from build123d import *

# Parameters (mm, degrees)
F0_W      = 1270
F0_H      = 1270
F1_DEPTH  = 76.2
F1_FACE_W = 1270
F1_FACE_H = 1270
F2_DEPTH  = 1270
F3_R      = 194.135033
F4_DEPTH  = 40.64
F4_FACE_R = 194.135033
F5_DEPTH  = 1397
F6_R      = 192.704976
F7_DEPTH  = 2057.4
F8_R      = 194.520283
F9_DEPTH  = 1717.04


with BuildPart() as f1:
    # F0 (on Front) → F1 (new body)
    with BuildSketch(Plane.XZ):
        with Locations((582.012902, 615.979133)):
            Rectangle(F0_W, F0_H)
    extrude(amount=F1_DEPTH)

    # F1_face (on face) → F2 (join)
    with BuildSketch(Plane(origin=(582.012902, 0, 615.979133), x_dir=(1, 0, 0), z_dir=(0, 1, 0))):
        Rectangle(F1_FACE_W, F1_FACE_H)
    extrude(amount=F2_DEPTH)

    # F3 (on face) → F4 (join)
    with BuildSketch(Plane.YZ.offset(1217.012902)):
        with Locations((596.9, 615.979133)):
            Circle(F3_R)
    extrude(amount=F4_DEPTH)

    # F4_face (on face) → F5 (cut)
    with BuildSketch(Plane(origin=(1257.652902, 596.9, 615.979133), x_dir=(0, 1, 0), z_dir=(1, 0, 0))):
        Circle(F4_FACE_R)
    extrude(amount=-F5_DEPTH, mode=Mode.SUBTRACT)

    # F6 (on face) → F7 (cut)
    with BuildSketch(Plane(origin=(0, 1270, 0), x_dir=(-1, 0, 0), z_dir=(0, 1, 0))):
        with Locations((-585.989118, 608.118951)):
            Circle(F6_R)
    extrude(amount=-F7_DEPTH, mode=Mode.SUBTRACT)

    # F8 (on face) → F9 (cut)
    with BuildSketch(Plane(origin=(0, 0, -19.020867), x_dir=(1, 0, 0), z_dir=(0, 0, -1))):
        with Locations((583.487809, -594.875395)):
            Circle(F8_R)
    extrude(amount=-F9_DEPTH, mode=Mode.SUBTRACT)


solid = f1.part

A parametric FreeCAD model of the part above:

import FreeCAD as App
import Part
import Sketcher
Q = App.Units.Quantity


def add_polygon(sketch, points):
    """Adds a closed chain of lines whose ends are joined by coincident constraints."""
    first, n = sketch.GeometryCount, len(points)
    for a, b in zip(points, points[1:] + points[:1]):
        sketch.addGeometry(Part.LineSegment(App.Vector(*a, 0), App.Vector(*b, 0)), False)
    for i in range(n):
        sketch.addConstraint(Sketcher.Constraint("Coincident", first + i, 2, first + (i + 1) % n, 1))

doc = App.newDocument("Part")
body = doc.addObject("PartDesign::Body", "Body")

# Sketch on XZ plane
sketch1 = body.newObject("Sketcher::SketchObject", "Sketch")
sketch1.AttachmentSupport = (doc.getObject("XZ_Plane"), [""])
sketch1.MapMode = "FlatFace"
add_polygon(sketch1, [(-52.987098, 1250.979133), (-52.987098, -19.020867), (1217.012902, -19.020867), (1217.012902, 1250.979133)])  # lines 0-3
sketch1.addConstraint([
    Sketcher.Constraint("Vertical", 0),
    Sketcher.Constraint("Horizontal", 1),
    Sketcher.Constraint("Vertical", 2),
    Sketcher.Constraint("Horizontal", 3),
    Sketcher.Constraint("Equal", 3, 0),
    Sketcher.Constraint("DistanceX", 1, 1, 1, 2, Q("50 in")),
    Sketcher.Constraint("DistanceX", 0, 2, -1, 1, Q("52.987098 mm")),
    Sketcher.Constraint("DistanceY", 0, 2, -1, 1, Q("19.020867 mm")),
])
pad1 = body.newObject("PartDesign::Pad", "Pad")
pad1.Profile = sketch1
pad1.Length = Q("3 in")

# Sketch on XZ plane
sketch2 = body.newObject("Sketcher::SketchObject", "Sketch001")
sketch2.AttachmentSupport = (doc.getObject("XZ_Plane"), [""])
sketch2.MapMode = "FlatFace"
add_polygon(sketch2, [(-52.987098, -19.020867), (-52.987098, 1250.979133), (1217.012902, 1250.979133), (1217.012902, -19.020867)])  # lines 0-3
sketch2.addConstraint([
    Sketcher.Constraint("Vertical", 0),
    Sketcher.Constraint("Horizontal", 1),
    Sketcher.Constraint("Vertical", 2),
    Sketcher.Constraint("Horizontal", 3),
    Sketcher.Constraint("Equal", 3, 0),
    Sketcher.Constraint("DistanceX", 1, 1, 1, 2, Q("50 in")),
    Sketcher.Constraint("DistanceX", 0, 2, -1, 1, Q("52.987098 mm")),
    Sketcher.Constraint("DistanceY", -1, 1, 0, 2, Q("1250.979133 mm")),
])
pad2 = body.newObject("PartDesign::Pad", "Pad001")
pad2.Profile = sketch2
pad2.Length = Q("50 in")
pad2.Reversed = True

# Sketch on YZ plane
sketch3 = body.newObject("Sketcher::SketchObject", "Sketch002")
sketch3.AttachmentSupport = (doc.getObject("YZ_Plane"), [""])
sketch3.MapMode = "FlatFace"
sketch3.AttachmentOffset = App.Placement(App.Vector(0, 0, 1217.012902), App.Rotation())
sketch3.addGeometry(Part.Circle(App.Vector(596.9, 615.979133, 0), App.Vector(0, 0, 1), 194.135033), False)
sketch3.addConstraint([
    Sketcher.Constraint("DistanceX", -1, 1, 0, 3, Q("23.5 in")),
    Sketcher.Constraint("Diameter", 0, Q("388.270066 mm")),
    Sketcher.Constraint("DistanceY", -1, 1, 0, 3, Q("615.979133 mm")),
])
pad3 = body.newObject("PartDesign::Pad", "Pad002")
pad3.Profile = sketch3
pad3.Length = Q("1.6 in")

# Sketch on YZ plane
sketch4 = body.newObject("Sketcher::SketchObject", "Sketch003")
sketch4.AttachmentSupport = (doc.getObject("YZ_Plane"), [""])
sketch4.MapMode = "FlatFace"
sketch4.AttachmentOffset = App.Placement(App.Vector(0, 0, 1257.652902), App.Rotation())
sketch4.addGeometry(Part.Circle(App.Vector(596.9, 615.979133, 0), App.Vector(0, 0, 1), 194.135033), False)
sketch4.addConstraint([
    Sketcher.Constraint("DistanceX", -1, 1, 0, 3, Q("23.5 in")),
    Sketcher.Constraint("Diameter", 0, Q("388.270066 mm")),
    Sketcher.Constraint("DistanceY", -1, 1, 0, 3, Q("615.979133 mm")),
])
pocket1 = body.newObject("PartDesign::Pocket", "Pocket")
pocket1.Profile = sketch4
pocket1.Length = Q("55 in")

# Sketch on XZ plane
sketch5 = body.newObject("Sketcher::SketchObject", "Sketch004")
sketch5.AttachmentSupport = (doc.getObject("XZ_Plane"), [""])
sketch5.MapMode = "FlatFace"
sketch5.AttachmentOffset = App.Placement(App.Vector(0, 0, -50 * 25.4), App.Rotation())
sketch5.addGeometry(Part.Circle(App.Vector(585.989118, 608.118951, 0), App.Vector(0, 0, 1), 192.704976), False)
sketch5.addConstraint([
    Sketcher.Constraint("Diameter", 0, Q("385.409952 mm")),
    Sketcher.Constraint("DistanceX", -1, 1, 0, 3, Q("585.989118 mm")),
    Sketcher.Constraint("DistanceY", -1, 1, 0, 3, Q("608.118951 mm")),
])
pocket2 = body.newObject("PartDesign::Pocket", "Pocket001")
pocket2.Profile = sketch5
pocket2.Length = Q("81 in")
pocket2.Reversed = True

# Sketch on XY plane
sketch6 = body.newObject("Sketcher::SketchObject", "Sketch005")
sketch6.AttachmentSupport = (doc.getObject("XY_Plane"), [""])
sketch6.MapMode = "FlatFace"
sketch6.AttachmentOffset = App.Placement(App.Vector(0, 0, -19.020867), App.Rotation())
sketch6.addGeometry(Part.Circle(App.Vector(583.487809, 594.875395, 0), App.Vector(0, 0, 1), 194.520283), False)
sketch6.addConstraint([
    Sketcher.Constraint("Diameter", 0, Q("389.040566 mm")),
    Sketcher.Constraint("DistanceX", -1, 1, 0, 3, Q("583.487809 mm")),
    Sketcher.Constraint("DistanceY", -1, 1, 0, 3, Q("594.875395 mm")),
])
pocket3 = body.newObject("PartDesign::Pocket", "Pocket002")
pocket3.Profile = sketch6
pocket3.Length = Q("67.6 in")
pocket3.Reversed = True

doc.recompute()
